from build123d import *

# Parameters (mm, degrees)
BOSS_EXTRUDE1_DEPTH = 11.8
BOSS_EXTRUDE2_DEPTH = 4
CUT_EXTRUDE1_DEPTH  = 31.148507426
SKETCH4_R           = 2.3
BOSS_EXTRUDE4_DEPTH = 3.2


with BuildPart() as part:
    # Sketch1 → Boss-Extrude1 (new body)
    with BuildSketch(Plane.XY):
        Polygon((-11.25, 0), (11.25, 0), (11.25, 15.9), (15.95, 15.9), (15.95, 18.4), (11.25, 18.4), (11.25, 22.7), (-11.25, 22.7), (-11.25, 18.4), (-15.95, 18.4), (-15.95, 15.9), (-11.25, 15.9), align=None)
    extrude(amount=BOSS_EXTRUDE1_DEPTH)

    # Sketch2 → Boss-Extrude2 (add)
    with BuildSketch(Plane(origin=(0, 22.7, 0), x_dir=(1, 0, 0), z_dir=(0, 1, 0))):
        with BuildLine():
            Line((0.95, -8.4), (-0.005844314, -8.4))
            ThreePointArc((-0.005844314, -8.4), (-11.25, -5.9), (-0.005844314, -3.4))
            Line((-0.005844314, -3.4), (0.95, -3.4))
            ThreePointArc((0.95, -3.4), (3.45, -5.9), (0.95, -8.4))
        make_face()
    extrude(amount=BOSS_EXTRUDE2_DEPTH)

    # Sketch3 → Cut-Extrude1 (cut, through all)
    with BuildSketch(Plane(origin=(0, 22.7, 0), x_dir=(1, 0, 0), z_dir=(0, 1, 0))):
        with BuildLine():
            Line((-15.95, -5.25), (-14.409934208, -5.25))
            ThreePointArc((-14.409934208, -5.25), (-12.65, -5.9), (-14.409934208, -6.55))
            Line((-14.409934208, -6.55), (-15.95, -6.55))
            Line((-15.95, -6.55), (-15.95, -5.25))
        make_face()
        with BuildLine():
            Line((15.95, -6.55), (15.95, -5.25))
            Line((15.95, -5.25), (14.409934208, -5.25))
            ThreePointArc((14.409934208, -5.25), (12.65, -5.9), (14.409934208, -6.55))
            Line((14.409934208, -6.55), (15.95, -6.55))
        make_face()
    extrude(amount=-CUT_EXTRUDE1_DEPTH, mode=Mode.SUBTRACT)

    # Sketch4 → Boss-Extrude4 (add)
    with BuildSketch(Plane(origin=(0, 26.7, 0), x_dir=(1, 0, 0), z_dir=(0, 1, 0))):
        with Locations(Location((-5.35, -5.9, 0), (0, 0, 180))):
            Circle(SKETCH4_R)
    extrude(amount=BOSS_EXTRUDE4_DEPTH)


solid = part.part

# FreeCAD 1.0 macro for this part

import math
import FreeCAD as App
import Part
import Sketcher
from FreeCAD import Vector


def add_polygon(sketch, points):
    """Adds a closed chain of lines whose ends are joined by coincident constraints."""
    first, n = sketch.GeometryCount, len(points)
    for a, b in zip(points, points[1:] + points[:1]):
        sketch.addGeometry(Part.LineSegment(App.Vector(*a, 0), App.Vector(*b, 0)), False)
    for i in range(n):
        sketch.addConstraint(Sketcher.Constraint("Coincident", first + i, 2, first + (i + 1) % n, 1))

doc = App.newDocument("Part")
body = doc.addObject("PartDesign::Body", "Body")

# Sketch on XY plane
sketch1 = body.newObject("Sketcher::SketchObject", "Sketch")
sketch1.AttachmentSupport = (doc.getObject("XY_Plane"), [""])
sketch1.MapMode = "FlatFace"
add_polygon(sketch1, [(-11.2, 0), (11.2, 0), (11.2, 15.9), (15.9, 15.9), (15.9, 18.4), (11.2, 18.4), (11.2, 22.7), (-11.2, 22.7), (-11.2, 18.4), (-15.9, 18.4), (-15.9, 15.9), (-11.2, 15.9)])  # lines 0-11
sketch1.addConstraint([
    Sketcher.Constraint("Horizontal", 0),
    Sketcher.Constraint("Vertical", 1),
    Sketcher.Constraint("Horizontal", 2),
    Sketcher.Constraint("Vertical", 3),
    Sketcher.Constraint("Horizontal", 4),
    Sketcher.Constraint("Vertical", 5),
    Sketcher.Constraint("Horizontal", 6),
    Sketcher.Constraint("Vertical", 7),
    Sketcher.Constraint("Horizontal", 8),
    Sketcher.Constraint("Vertical", 9),
    Sketcher.Constraint("Horizontal", 10),
    Sketcher.Constraint("Vertical", 11),
    Sketcher.Constraint("Symmetric", 0, 2, 11, 2, -1, 1),
    Sketcher.Constraint("Symmetric", 4, 2, 7, 2, -2),
    Sketcher.Constraint("Symmetric", 2, 2, 9, 2, -2),
    Sketcher.Constraint("Vertical", 1, 2, 4, 2),
    Sketcher.Constraint("DistanceX", 0, 1, 0, 2, 22.5),
    Sketcher.Constraint("DistanceX", 2, 1, 2, 2, 4.7),
    Sketcher.Constraint("DistanceY", 1, 1, 1, 2, 15.9),
    Sketcher.Constraint("DistanceY", 3, 1, 3, 2, 2.5),
    Sketcher.Constraint("DistanceY", 5, 1, 5, 2, 4.3),
])
pad1 = body.newObject("PartDesign::Pad", "Pad")
pad1.Profile = sketch1
pad1.Length = 11.8

# Sketch on XZ plane
sketch2 = body.newObject("Sketcher::SketchObject", "Sketch001")
sketch2.AttachmentSupport = (doc.getObject("XZ_Plane"), [""])
sketch2.MapMode = "FlatFace"
sketch2.AttachmentOffset = App.Placement(Vector(0, 0, -22.7), App.Rotation())
sketch2.addGeometry([
    Part.LineSegment(Vector(0, 8.4, 0), Vector(0.9, 8.4, 0)),
    Part.ArcOfCircle(Part.Circle(Vector(0.9, 5.9, 0), Vector(0, 0, 1), 2.5), math.radians(-90), math.radians(90)),
    Part.LineSegment(Vector(0.9, 3.4, 0), Vector(0, 3.4, 0)),
    Part.ArcOfCircle(Part.Circle(Vector(-5.3, 5.9, 0), Vector(0, 0, 1), 5.9), math.radians(25), math.radians(335)),
], False)
sketch2.addConstraint([
    Sketcher.Constraint("Tangent", 0, 2, 1, 2),
    Sketcher.Constraint("Tangent", 1, 1, 2, 1),
    Sketcher.Constraint("Coincident", 2, 2, 3, 2),
    Sketcher.Constraint("Coincident", 3, 1, 0, 1),
    Sketcher.Constraint("Horizontal", 0),
    Sketcher.Constraint("Horizontal", 2),
    Sketcher.Constraint("Horizontal", 1, 3, 3, 3),
    Sketcher.Constraint("Radius", 1, 2.5),
    Sketcher.Constraint("Radius", 3, 5.9),
    Sketcher.Constraint("DistanceY", -1, 1, 1, 3, 5.9),
    Sketcher.Constraint("DistanceX", 3, 3, 1, 3, 6.3),
    Sketcher.Constraint("DistanceX", -1, 1, 1, 3, 0.95),
])
pad2 = body.newObject("PartDesign::Pad", "Pad001")
pad2.Profile = sketch2
pad2.Length = 4
pad2.Reversed = True

# Sketch on XZ plane
sketch3 = body.newObject("Sketcher::SketchObject", "Sketch002")
sketch3.AttachmentSupport = (doc.getObject("XZ_Plane"), [""])
sketch3.MapMode = "FlatFace"
sketch3.AttachmentOffset = App.Placement(Vector(0, 0, -22.7), App.Rotation())
sketch3.addGeometry([
    Part.LineSegment(Vector(-14.4, 5.2, 0), Vector(-15.9, 5.2, 0)),  # 0
    Part.LineSegment(Vector(-15.9, 5.2, 0), Vector(-15.9, 6.5, 0)),  # 1
    Part.LineSegment(Vector(-15.9, 6.5, 0), Vector(-14.4, 6.5, 0)),  # 2
    Part.ArcOfCircle(Part.Circle(Vector(-13.7, 5.9, 0), Vector(0, 0, 1), 1), math.radians(-139), math.radians(139)),  # 3
    Part.LineSegment(Vector(15.9, 6.5, 0), Vector(15.9, 5.2, 0)),  # 4
    Part.LineSegment(Vector(15.9, 5.2, 0), Vector(14.4, 5.2, 0)),  # 5
    Part.ArcOfCircle(Part.Circle(Vector(13.7, 5.9, 0), Vector(0, 0, 1), 1), math.radians(41), math.radians(319)),  # 6
    Part.LineSegment(Vector(14.4, 6.5, 0), Vector(15.9, 6.5, 0)),  # 7
], False)
sketch3.addConstraint([
    Sketcher.Constraint("Coincident", 0, 2, 1, 1),
    Sketcher.Constraint("Coincident", 1, 2, 2, 1),
    Sketcher.Constraint("Coincident", 2, 2, 3, 2),
    Sketcher.Constraint("Coincident", 3, 1, 0, 1),
    Sketcher.Constraint("Coincident", 4, 2, 5, 1),
    Sketcher.Constraint("Coincident", 5, 2, 6, 2),
    Sketcher.Constraint("Coincident", 6, 1, 7, 1),
    Sketcher.Constraint("Coincident", 7, 2, 4, 1),
    Sketcher.Constraint("Horizontal", 0),
    Sketcher.Constraint("Vertical", 1),
    Sketcher.Constraint("Horizontal", 2),
    Sketcher.Constraint("Vertical", 4),
    Sketcher.Constraint("Horizontal", 5),
    Sketcher.Constraint("Horizontal", 7),
    Sketcher.Constraint("Equal", 3, 6),
    Sketcher.Constraint("Symmetric", 3, 3, 6, 3, -2),
    Sketcher.Constraint("Symmetric", 0, 2, 4, 2, -2),
    Sketcher.Constraint("Horizontal", 2, 2, 6, 1),
    Sketcher.Constraint("Vertical", 2, 2, 3, 1),
    Sketcher.Constraint("Radius", 3, 1.0),
    Sketcher.Constraint("DistanceY", 1, 1, 1, 2, 1.3),
    Sketcher.Constraint("DistanceY", -1, 1, 3, 3, 5.9),
    Sketcher.Constraint("DistanceX", 3, 3, 6, 3, 27.3),
    Sketcher.Constraint("DistanceX", 0, 2, 3, 3, 2.3),
])
pocket1 = body.newObject("PartDesign::Pocket", "Pocket")
pocket1.Profile = sketch3
pocket1.Type = "ThroughAll"
pocket1.Reversed = True

# Sketch on XZ plane
sketch4 = body.newObject("Sketcher::SketchObject", "Sketch003")
sketch4.AttachmentSupport = (doc.getObject("XZ_Plane"), [""])
sketch4.MapMode = "FlatFace"
sketch4.AttachmentOffset = App.Placement(Vector(0, 0, -26.7), App.Rotation())
sketch4.addGeometry(Part.Circle(Vector(-5.3, 5.9, 0), Vector(0, 0, 1), 2.3), False)
sketch4.addConstraint([
    Sketcher.Constraint("Diameter", 0, 4.6),
    Sketcher.Constraint("DistanceY", -1, 1, 0, 3, 5.9),
    Sketcher.Constraint("DistanceX", 0, 3, -1, 1, 5.35),
])
pad3 = body.newObject("PartDesign::Pad", "Pad002")
pad3.Profile = sketch4
pad3.Length = 3.2
pad3.Reversed = True

doc.recompute()
